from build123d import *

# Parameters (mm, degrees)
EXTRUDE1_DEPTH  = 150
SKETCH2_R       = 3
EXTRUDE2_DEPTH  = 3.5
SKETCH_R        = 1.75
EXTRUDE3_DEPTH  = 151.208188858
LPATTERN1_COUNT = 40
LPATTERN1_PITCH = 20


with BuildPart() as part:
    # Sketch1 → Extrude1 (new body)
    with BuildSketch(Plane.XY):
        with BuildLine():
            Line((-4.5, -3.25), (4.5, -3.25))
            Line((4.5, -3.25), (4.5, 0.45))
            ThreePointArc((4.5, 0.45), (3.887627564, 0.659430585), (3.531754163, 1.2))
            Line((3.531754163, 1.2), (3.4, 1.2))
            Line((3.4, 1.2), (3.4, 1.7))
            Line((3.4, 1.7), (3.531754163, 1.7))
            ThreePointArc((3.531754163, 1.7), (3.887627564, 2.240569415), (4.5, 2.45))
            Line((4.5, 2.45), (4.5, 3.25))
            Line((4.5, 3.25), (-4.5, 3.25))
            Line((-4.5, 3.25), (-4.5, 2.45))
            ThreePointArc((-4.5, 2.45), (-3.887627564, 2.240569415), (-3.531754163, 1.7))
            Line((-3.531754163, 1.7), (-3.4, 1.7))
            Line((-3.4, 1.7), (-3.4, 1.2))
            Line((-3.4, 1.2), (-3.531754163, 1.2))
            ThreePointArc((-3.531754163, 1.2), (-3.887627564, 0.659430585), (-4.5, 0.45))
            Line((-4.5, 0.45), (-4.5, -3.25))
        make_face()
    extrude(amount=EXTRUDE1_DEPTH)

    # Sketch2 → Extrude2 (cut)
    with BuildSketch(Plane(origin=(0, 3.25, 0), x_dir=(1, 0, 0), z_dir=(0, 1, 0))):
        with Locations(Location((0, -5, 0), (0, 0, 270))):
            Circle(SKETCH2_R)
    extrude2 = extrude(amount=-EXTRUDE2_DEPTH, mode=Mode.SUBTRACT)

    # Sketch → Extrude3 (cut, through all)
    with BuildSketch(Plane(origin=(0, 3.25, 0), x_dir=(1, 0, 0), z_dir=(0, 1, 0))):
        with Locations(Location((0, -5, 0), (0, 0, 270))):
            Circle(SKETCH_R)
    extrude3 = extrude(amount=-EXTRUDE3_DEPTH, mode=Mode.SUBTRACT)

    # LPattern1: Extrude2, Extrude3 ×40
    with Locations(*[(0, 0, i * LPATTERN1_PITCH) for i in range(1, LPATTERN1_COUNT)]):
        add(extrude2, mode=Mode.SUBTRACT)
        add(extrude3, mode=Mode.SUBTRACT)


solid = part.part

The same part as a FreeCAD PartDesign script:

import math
import FreeCAD as App
import Part
import Sketcher

doc = App.newDocument("Part")
params = doc.addObject("Spreadsheet::Sheet", "Params")
for row, (alias, value) in enumerate([
    ("sketch1_radius", "1 mm"),
    ("sketch1_width", "9 mm"),
    ("sketch1_height", "3.7 mm"),
    ("sketch1_height2", "0.5 mm"),
    ("sketch1_height3", "0.8 mm"),
    ("pad1_length", "150 mm"),
    ("sketch2_diameter", "6 mm"),
    ("pocket1_length", "3.5 mm"),
    ("sketch3_diameter", "3.5 mm"),
    ("linearpattern_pitch", "20 mm"),
], start=1):
    params.set(f"A{row}", alias)
    params.set(f"B{row}", "=" + value)
    params.setAlias(f"B{row}", alias)

body = doc.addObject("PartDesign::Body", "Body")

# Sketch on XY plane
sketch1 = body.newObject("Sketcher::SketchObject", "Sketch")
sketch1.AttachmentSupport = (doc.getObject("XY_Plane"), [""])
sketch1.MapMode = "FlatFace"
sketch1.addGeometry([
    Part.LineSegment(App.Vector(-4.5, -3.25, 0), App.Vector(4.5, -3.25, 0)),  # 0
    Part.LineSegment(App.Vector(4.5, -3.25, 0), App.Vector(4.5, 0.45, 0)),  # 1
    Part.ArcOfCircle(Part.Circle(App.Vector(4.5, 1.45, 0), App.Vector(0, 0, 1), 1), math.radians(-165.522488), math.radians(-90)),  # 2
    Part.LineSegment(App.Vector(3.531754, 1.2, 0), App.Vector(3.4, 1.2, 0)),  # 3
    Part.LineSegment(App.Vector(3.4, 1.2, 0), App.Vector(3.4, 1.7, 0)),  # 4
    Part.LineSegment(App.Vector(3.4, 1.7, 0), App.Vector(3.531754, 1.7, 0)),  # 5
    Part.ArcOfCircle(Part.Circle(App.Vector(4.5, 1.45, 0), App.Vector(0, 0, 1), 1), math.radians(90), math.radians(165.522488)),  # 6
    Part.LineSegment(App.Vector(4.5, 2.45, 0), App.Vector(4.5, 3.25, 0)),  # 7
    Part.LineSegment(App.Vector(4.5, 3.25, 0), App.Vector(-4.5, 3.25, 0)),  # 8
    Part.LineSegment(App.Vector(-4.5, 3.25, 0), App.Vector(-4.5, 2.45, 0)),  # 9
    Part.ArcOfCircle(Part.Circle(App.Vector(-4.5, 1.45, 0), App.Vector(0, 0, 1), 1), math.radians(14.477512), math.radians(90)),  # 10
    Part.LineSegment(App.Vector(-3.531754, 1.7, 0), App.Vector(-3.4, 1.7, 0)),  # 11
    Part.LineSegment(App.Vector(-3.4, 1.7, 0), App.Vector(-3.4, 1.2, 0)),  # 12
    Part.LineSegment(App.Vector(-3.4, 1.2, 0), App.Vector(-3.531754, 1.2, 0)),  # 13
    Part.ArcOfCircle(Part.Circle(App.Vector(-4.5, 1.45, 0), App.Vector(0, 0, 1), 1), math.radians(-90), math.radians(-14.477512)),  # 14
    Part.LineSegment(App.Vector(-4.5, 0.45, 0), App.Vector(-4.5, -3.25, 0)),  # 15
], False)
sketch1.addConstraint([
    Sketcher.Constraint("Coincident", 0, 2, 1, 1),
    Sketcher.Constraint("Coincident", 1, 2, 2, 2),
    Sketcher.Constraint("Coincident", 2, 1, 3, 1),
    Sketcher.Constraint("Coincident", 3, 2, 4, 1),
    Sketcher.Constraint("Coincident", 4, 2, 5, 1),
    Sketcher.Constraint("Coincident", 5, 2, 6, 2),
    Sketcher.Constraint("Coincident", 6, 1, 7, 1),
    Sketcher.Constraint("Coincident", 7, 2, 8, 1),
    Sketcher.Constraint("Coincident", 8, 2, 9, 1),
    Sketcher.Constraint("Coincident", 9, 2, 10, 2),
    Sketcher.Constraint("Coincident", 10, 1, 11, 1),
    Sketcher.Constraint("Coincident", 11, 2, 12, 1),
    Sketcher.Constraint("Coincident", 12, 2, 13, 1),
    Sketcher.Constraint("Coincident", 13, 2, 14, 2),
    Sketcher.Constraint("Coincident", 14, 1, 15, 1),
    Sketcher.Constraint("Coincident", 15, 2, 0, 1),
    Sketcher.Constraint("Horizontal", 0),
    Sketcher.Constraint("Vertical", 1),
    Sketcher.Constraint("Horizontal", 3),
    Sketcher.Constraint("Vertical", 4),
    Sketcher.Constraint("Horizontal", 5),
    Sketcher.Constraint("Vertical", 7),
    Sketcher.Constraint("Horizontal", 8),
    Sketcher.Constraint("Vertical", 9),
    Sketcher.Constraint("Horizontal", 11),
    Sketcher.Constraint("Vertical", 12),
    Sketcher.Constraint("Horizontal", 13),
    Sketcher.Constraint("Vertical", 15),
    Sketcher.Constraint("Coincident", 6, 3, 2, 3),
    Sketcher.Constraint("Coincident", 14, 3, 10, 3),
    Sketcher.Constraint("Equal", 2, 6),
    Sketcher.Constraint("Equal", 6, 10),
    Sketcher.Constraint("Equal", 10, 14),
    Sketcher.Constraint("Symmetric", 0, 2, 8, 2, -1, 1),
    Sketcher.Constraint("Symmetric", 2, 3, 10, 3, -2),
    Sketcher.Constraint("Symmetric", 4, 2, 11, 2, -2),
    Sketcher.Constraint("Horizontal", 3, 2, 12, 2),
    Sketcher.Constraint("Vertical", 6, 3, 0, 2),
    Sketcher.Constraint("Vertical", 2, 1, 5, 2),
    Sketcher.Constraint("Vertical", 1, 2, 6, 1),
    Sketcher.Constraint("Vertical", 9, 2, 14, 1),
    Sketcher.Constraint("Radius", 2, 1.0),
    Sketcher.Constraint("DistanceX", 0, 1, 0, 2, 9.0),
    Sketcher.Constraint("DistanceY", 1, 1, 1, 2, 3.7),
    Sketcher.Constraint("DistanceY", 4, 1, 4, 2, 0.5),
    Sketcher.Constraint("DistanceY", 7, 1, 7, 2, 0.8),
    Sketcher.Constraint("DistanceX", -1, 1, 3, 2, 3.4),
])
sketch1.setExpression("Constraints[41]", "Params.sketch1_radius")
sketch1.setExpression("Constraints[42]", "Params.sketch1_width")
sketch1.setExpression("Constraints[43]", "Params.sketch1_height")
sketch1.setExpression("Constraints[44]", "Params.sketch1_height2")
sketch1.setExpression("Constraints[45]", "Params.sketch1_height3")
pad1 = body.newObject("PartDesign::Pad", "Pad")
pad1.Profile = sketch1
pad1.setExpression("Length", "Params.pad1_length")

# Sketch on XZ plane
sketch2 = body.newObject("Sketcher::SketchObject", "Sketch001")
sketch2.AttachmentSupport = (doc.getObject("XZ_Plane"), [""])
sketch2.MapMode = "FlatFace"
sketch2.AttachmentOffset = App.Placement(App.Vector(0, 0, -3.25), App.Rotation())
sketch2.addGeometry(Part.Circle(App.Vector(0, 5, 0), App.Vector(0, 0, 1), 3), False)
sketch2.addConstraint([
    Sketcher.Constraint("PointOnObject", 0, 3, -2),
    Sketcher.Constraint("Diameter", 0, 6.0),
    Sketcher.Constraint("DistanceY", -1, 1, 0, 3, 5.0),
])
sketch2.setExpression("Constraints[1]", "Params.sketch2_diameter")
pocket1 = body.newObject("PartDesign::Pocket", "Pocket")
pocket1.Profile = sketch2
pocket1.setExpression("Length", "Params.pocket1_length")
pocket1.Reversed = True

# Sketch on XZ plane
sketch3 = body.newObject("Sketcher::SketchObject", "Sketch002")
sketch3.AttachmentSupport = (doc.getObject("XZ_Plane"), [""])
sketch3.MapMode = "FlatFace"
sketch3.AttachmentOffset = App.Placement(App.Vector(0, 0, -3.25), App.Rotation())
sketch3.addGeometry(Part.Circle(App.Vector(0, 5, 0), App.Vector(0, 0, 1), 1.75), False)
sketch3.addConstraint([
    Sketcher.Constraint("PointOnObject", 0, 3, -2),
    Sketcher.Constraint("Diameter", 0, 3.5),
    Sketcher.Constraint("DistanceY", -1, 1, 0, 3, 5.0),
])
sketch3.setExpression("Constraints[1]", "Params.sketch3_diameter")
pocket2 = body.newObject("PartDesign::Pocket", "Pocket001")
pocket2.Profile = sketch3
pocket2.Type = "ThroughAll"
pocket2.Reversed = True
doc.recompute()

linearpattern = body.newObject("PartDesign::LinearPattern", "LinearPattern")
linearpattern.Originals = [pocket1, pocket2]
linearpattern.Direction = (doc.getObject("Z_Axis"), [""])
linearpattern.Mode = "offset"
linearpattern.setExpression("Offset", "Params.linearpattern_pitch")
linearpattern.Occurrences = 40
body.Tip = linearpattern

doc.recompute()
